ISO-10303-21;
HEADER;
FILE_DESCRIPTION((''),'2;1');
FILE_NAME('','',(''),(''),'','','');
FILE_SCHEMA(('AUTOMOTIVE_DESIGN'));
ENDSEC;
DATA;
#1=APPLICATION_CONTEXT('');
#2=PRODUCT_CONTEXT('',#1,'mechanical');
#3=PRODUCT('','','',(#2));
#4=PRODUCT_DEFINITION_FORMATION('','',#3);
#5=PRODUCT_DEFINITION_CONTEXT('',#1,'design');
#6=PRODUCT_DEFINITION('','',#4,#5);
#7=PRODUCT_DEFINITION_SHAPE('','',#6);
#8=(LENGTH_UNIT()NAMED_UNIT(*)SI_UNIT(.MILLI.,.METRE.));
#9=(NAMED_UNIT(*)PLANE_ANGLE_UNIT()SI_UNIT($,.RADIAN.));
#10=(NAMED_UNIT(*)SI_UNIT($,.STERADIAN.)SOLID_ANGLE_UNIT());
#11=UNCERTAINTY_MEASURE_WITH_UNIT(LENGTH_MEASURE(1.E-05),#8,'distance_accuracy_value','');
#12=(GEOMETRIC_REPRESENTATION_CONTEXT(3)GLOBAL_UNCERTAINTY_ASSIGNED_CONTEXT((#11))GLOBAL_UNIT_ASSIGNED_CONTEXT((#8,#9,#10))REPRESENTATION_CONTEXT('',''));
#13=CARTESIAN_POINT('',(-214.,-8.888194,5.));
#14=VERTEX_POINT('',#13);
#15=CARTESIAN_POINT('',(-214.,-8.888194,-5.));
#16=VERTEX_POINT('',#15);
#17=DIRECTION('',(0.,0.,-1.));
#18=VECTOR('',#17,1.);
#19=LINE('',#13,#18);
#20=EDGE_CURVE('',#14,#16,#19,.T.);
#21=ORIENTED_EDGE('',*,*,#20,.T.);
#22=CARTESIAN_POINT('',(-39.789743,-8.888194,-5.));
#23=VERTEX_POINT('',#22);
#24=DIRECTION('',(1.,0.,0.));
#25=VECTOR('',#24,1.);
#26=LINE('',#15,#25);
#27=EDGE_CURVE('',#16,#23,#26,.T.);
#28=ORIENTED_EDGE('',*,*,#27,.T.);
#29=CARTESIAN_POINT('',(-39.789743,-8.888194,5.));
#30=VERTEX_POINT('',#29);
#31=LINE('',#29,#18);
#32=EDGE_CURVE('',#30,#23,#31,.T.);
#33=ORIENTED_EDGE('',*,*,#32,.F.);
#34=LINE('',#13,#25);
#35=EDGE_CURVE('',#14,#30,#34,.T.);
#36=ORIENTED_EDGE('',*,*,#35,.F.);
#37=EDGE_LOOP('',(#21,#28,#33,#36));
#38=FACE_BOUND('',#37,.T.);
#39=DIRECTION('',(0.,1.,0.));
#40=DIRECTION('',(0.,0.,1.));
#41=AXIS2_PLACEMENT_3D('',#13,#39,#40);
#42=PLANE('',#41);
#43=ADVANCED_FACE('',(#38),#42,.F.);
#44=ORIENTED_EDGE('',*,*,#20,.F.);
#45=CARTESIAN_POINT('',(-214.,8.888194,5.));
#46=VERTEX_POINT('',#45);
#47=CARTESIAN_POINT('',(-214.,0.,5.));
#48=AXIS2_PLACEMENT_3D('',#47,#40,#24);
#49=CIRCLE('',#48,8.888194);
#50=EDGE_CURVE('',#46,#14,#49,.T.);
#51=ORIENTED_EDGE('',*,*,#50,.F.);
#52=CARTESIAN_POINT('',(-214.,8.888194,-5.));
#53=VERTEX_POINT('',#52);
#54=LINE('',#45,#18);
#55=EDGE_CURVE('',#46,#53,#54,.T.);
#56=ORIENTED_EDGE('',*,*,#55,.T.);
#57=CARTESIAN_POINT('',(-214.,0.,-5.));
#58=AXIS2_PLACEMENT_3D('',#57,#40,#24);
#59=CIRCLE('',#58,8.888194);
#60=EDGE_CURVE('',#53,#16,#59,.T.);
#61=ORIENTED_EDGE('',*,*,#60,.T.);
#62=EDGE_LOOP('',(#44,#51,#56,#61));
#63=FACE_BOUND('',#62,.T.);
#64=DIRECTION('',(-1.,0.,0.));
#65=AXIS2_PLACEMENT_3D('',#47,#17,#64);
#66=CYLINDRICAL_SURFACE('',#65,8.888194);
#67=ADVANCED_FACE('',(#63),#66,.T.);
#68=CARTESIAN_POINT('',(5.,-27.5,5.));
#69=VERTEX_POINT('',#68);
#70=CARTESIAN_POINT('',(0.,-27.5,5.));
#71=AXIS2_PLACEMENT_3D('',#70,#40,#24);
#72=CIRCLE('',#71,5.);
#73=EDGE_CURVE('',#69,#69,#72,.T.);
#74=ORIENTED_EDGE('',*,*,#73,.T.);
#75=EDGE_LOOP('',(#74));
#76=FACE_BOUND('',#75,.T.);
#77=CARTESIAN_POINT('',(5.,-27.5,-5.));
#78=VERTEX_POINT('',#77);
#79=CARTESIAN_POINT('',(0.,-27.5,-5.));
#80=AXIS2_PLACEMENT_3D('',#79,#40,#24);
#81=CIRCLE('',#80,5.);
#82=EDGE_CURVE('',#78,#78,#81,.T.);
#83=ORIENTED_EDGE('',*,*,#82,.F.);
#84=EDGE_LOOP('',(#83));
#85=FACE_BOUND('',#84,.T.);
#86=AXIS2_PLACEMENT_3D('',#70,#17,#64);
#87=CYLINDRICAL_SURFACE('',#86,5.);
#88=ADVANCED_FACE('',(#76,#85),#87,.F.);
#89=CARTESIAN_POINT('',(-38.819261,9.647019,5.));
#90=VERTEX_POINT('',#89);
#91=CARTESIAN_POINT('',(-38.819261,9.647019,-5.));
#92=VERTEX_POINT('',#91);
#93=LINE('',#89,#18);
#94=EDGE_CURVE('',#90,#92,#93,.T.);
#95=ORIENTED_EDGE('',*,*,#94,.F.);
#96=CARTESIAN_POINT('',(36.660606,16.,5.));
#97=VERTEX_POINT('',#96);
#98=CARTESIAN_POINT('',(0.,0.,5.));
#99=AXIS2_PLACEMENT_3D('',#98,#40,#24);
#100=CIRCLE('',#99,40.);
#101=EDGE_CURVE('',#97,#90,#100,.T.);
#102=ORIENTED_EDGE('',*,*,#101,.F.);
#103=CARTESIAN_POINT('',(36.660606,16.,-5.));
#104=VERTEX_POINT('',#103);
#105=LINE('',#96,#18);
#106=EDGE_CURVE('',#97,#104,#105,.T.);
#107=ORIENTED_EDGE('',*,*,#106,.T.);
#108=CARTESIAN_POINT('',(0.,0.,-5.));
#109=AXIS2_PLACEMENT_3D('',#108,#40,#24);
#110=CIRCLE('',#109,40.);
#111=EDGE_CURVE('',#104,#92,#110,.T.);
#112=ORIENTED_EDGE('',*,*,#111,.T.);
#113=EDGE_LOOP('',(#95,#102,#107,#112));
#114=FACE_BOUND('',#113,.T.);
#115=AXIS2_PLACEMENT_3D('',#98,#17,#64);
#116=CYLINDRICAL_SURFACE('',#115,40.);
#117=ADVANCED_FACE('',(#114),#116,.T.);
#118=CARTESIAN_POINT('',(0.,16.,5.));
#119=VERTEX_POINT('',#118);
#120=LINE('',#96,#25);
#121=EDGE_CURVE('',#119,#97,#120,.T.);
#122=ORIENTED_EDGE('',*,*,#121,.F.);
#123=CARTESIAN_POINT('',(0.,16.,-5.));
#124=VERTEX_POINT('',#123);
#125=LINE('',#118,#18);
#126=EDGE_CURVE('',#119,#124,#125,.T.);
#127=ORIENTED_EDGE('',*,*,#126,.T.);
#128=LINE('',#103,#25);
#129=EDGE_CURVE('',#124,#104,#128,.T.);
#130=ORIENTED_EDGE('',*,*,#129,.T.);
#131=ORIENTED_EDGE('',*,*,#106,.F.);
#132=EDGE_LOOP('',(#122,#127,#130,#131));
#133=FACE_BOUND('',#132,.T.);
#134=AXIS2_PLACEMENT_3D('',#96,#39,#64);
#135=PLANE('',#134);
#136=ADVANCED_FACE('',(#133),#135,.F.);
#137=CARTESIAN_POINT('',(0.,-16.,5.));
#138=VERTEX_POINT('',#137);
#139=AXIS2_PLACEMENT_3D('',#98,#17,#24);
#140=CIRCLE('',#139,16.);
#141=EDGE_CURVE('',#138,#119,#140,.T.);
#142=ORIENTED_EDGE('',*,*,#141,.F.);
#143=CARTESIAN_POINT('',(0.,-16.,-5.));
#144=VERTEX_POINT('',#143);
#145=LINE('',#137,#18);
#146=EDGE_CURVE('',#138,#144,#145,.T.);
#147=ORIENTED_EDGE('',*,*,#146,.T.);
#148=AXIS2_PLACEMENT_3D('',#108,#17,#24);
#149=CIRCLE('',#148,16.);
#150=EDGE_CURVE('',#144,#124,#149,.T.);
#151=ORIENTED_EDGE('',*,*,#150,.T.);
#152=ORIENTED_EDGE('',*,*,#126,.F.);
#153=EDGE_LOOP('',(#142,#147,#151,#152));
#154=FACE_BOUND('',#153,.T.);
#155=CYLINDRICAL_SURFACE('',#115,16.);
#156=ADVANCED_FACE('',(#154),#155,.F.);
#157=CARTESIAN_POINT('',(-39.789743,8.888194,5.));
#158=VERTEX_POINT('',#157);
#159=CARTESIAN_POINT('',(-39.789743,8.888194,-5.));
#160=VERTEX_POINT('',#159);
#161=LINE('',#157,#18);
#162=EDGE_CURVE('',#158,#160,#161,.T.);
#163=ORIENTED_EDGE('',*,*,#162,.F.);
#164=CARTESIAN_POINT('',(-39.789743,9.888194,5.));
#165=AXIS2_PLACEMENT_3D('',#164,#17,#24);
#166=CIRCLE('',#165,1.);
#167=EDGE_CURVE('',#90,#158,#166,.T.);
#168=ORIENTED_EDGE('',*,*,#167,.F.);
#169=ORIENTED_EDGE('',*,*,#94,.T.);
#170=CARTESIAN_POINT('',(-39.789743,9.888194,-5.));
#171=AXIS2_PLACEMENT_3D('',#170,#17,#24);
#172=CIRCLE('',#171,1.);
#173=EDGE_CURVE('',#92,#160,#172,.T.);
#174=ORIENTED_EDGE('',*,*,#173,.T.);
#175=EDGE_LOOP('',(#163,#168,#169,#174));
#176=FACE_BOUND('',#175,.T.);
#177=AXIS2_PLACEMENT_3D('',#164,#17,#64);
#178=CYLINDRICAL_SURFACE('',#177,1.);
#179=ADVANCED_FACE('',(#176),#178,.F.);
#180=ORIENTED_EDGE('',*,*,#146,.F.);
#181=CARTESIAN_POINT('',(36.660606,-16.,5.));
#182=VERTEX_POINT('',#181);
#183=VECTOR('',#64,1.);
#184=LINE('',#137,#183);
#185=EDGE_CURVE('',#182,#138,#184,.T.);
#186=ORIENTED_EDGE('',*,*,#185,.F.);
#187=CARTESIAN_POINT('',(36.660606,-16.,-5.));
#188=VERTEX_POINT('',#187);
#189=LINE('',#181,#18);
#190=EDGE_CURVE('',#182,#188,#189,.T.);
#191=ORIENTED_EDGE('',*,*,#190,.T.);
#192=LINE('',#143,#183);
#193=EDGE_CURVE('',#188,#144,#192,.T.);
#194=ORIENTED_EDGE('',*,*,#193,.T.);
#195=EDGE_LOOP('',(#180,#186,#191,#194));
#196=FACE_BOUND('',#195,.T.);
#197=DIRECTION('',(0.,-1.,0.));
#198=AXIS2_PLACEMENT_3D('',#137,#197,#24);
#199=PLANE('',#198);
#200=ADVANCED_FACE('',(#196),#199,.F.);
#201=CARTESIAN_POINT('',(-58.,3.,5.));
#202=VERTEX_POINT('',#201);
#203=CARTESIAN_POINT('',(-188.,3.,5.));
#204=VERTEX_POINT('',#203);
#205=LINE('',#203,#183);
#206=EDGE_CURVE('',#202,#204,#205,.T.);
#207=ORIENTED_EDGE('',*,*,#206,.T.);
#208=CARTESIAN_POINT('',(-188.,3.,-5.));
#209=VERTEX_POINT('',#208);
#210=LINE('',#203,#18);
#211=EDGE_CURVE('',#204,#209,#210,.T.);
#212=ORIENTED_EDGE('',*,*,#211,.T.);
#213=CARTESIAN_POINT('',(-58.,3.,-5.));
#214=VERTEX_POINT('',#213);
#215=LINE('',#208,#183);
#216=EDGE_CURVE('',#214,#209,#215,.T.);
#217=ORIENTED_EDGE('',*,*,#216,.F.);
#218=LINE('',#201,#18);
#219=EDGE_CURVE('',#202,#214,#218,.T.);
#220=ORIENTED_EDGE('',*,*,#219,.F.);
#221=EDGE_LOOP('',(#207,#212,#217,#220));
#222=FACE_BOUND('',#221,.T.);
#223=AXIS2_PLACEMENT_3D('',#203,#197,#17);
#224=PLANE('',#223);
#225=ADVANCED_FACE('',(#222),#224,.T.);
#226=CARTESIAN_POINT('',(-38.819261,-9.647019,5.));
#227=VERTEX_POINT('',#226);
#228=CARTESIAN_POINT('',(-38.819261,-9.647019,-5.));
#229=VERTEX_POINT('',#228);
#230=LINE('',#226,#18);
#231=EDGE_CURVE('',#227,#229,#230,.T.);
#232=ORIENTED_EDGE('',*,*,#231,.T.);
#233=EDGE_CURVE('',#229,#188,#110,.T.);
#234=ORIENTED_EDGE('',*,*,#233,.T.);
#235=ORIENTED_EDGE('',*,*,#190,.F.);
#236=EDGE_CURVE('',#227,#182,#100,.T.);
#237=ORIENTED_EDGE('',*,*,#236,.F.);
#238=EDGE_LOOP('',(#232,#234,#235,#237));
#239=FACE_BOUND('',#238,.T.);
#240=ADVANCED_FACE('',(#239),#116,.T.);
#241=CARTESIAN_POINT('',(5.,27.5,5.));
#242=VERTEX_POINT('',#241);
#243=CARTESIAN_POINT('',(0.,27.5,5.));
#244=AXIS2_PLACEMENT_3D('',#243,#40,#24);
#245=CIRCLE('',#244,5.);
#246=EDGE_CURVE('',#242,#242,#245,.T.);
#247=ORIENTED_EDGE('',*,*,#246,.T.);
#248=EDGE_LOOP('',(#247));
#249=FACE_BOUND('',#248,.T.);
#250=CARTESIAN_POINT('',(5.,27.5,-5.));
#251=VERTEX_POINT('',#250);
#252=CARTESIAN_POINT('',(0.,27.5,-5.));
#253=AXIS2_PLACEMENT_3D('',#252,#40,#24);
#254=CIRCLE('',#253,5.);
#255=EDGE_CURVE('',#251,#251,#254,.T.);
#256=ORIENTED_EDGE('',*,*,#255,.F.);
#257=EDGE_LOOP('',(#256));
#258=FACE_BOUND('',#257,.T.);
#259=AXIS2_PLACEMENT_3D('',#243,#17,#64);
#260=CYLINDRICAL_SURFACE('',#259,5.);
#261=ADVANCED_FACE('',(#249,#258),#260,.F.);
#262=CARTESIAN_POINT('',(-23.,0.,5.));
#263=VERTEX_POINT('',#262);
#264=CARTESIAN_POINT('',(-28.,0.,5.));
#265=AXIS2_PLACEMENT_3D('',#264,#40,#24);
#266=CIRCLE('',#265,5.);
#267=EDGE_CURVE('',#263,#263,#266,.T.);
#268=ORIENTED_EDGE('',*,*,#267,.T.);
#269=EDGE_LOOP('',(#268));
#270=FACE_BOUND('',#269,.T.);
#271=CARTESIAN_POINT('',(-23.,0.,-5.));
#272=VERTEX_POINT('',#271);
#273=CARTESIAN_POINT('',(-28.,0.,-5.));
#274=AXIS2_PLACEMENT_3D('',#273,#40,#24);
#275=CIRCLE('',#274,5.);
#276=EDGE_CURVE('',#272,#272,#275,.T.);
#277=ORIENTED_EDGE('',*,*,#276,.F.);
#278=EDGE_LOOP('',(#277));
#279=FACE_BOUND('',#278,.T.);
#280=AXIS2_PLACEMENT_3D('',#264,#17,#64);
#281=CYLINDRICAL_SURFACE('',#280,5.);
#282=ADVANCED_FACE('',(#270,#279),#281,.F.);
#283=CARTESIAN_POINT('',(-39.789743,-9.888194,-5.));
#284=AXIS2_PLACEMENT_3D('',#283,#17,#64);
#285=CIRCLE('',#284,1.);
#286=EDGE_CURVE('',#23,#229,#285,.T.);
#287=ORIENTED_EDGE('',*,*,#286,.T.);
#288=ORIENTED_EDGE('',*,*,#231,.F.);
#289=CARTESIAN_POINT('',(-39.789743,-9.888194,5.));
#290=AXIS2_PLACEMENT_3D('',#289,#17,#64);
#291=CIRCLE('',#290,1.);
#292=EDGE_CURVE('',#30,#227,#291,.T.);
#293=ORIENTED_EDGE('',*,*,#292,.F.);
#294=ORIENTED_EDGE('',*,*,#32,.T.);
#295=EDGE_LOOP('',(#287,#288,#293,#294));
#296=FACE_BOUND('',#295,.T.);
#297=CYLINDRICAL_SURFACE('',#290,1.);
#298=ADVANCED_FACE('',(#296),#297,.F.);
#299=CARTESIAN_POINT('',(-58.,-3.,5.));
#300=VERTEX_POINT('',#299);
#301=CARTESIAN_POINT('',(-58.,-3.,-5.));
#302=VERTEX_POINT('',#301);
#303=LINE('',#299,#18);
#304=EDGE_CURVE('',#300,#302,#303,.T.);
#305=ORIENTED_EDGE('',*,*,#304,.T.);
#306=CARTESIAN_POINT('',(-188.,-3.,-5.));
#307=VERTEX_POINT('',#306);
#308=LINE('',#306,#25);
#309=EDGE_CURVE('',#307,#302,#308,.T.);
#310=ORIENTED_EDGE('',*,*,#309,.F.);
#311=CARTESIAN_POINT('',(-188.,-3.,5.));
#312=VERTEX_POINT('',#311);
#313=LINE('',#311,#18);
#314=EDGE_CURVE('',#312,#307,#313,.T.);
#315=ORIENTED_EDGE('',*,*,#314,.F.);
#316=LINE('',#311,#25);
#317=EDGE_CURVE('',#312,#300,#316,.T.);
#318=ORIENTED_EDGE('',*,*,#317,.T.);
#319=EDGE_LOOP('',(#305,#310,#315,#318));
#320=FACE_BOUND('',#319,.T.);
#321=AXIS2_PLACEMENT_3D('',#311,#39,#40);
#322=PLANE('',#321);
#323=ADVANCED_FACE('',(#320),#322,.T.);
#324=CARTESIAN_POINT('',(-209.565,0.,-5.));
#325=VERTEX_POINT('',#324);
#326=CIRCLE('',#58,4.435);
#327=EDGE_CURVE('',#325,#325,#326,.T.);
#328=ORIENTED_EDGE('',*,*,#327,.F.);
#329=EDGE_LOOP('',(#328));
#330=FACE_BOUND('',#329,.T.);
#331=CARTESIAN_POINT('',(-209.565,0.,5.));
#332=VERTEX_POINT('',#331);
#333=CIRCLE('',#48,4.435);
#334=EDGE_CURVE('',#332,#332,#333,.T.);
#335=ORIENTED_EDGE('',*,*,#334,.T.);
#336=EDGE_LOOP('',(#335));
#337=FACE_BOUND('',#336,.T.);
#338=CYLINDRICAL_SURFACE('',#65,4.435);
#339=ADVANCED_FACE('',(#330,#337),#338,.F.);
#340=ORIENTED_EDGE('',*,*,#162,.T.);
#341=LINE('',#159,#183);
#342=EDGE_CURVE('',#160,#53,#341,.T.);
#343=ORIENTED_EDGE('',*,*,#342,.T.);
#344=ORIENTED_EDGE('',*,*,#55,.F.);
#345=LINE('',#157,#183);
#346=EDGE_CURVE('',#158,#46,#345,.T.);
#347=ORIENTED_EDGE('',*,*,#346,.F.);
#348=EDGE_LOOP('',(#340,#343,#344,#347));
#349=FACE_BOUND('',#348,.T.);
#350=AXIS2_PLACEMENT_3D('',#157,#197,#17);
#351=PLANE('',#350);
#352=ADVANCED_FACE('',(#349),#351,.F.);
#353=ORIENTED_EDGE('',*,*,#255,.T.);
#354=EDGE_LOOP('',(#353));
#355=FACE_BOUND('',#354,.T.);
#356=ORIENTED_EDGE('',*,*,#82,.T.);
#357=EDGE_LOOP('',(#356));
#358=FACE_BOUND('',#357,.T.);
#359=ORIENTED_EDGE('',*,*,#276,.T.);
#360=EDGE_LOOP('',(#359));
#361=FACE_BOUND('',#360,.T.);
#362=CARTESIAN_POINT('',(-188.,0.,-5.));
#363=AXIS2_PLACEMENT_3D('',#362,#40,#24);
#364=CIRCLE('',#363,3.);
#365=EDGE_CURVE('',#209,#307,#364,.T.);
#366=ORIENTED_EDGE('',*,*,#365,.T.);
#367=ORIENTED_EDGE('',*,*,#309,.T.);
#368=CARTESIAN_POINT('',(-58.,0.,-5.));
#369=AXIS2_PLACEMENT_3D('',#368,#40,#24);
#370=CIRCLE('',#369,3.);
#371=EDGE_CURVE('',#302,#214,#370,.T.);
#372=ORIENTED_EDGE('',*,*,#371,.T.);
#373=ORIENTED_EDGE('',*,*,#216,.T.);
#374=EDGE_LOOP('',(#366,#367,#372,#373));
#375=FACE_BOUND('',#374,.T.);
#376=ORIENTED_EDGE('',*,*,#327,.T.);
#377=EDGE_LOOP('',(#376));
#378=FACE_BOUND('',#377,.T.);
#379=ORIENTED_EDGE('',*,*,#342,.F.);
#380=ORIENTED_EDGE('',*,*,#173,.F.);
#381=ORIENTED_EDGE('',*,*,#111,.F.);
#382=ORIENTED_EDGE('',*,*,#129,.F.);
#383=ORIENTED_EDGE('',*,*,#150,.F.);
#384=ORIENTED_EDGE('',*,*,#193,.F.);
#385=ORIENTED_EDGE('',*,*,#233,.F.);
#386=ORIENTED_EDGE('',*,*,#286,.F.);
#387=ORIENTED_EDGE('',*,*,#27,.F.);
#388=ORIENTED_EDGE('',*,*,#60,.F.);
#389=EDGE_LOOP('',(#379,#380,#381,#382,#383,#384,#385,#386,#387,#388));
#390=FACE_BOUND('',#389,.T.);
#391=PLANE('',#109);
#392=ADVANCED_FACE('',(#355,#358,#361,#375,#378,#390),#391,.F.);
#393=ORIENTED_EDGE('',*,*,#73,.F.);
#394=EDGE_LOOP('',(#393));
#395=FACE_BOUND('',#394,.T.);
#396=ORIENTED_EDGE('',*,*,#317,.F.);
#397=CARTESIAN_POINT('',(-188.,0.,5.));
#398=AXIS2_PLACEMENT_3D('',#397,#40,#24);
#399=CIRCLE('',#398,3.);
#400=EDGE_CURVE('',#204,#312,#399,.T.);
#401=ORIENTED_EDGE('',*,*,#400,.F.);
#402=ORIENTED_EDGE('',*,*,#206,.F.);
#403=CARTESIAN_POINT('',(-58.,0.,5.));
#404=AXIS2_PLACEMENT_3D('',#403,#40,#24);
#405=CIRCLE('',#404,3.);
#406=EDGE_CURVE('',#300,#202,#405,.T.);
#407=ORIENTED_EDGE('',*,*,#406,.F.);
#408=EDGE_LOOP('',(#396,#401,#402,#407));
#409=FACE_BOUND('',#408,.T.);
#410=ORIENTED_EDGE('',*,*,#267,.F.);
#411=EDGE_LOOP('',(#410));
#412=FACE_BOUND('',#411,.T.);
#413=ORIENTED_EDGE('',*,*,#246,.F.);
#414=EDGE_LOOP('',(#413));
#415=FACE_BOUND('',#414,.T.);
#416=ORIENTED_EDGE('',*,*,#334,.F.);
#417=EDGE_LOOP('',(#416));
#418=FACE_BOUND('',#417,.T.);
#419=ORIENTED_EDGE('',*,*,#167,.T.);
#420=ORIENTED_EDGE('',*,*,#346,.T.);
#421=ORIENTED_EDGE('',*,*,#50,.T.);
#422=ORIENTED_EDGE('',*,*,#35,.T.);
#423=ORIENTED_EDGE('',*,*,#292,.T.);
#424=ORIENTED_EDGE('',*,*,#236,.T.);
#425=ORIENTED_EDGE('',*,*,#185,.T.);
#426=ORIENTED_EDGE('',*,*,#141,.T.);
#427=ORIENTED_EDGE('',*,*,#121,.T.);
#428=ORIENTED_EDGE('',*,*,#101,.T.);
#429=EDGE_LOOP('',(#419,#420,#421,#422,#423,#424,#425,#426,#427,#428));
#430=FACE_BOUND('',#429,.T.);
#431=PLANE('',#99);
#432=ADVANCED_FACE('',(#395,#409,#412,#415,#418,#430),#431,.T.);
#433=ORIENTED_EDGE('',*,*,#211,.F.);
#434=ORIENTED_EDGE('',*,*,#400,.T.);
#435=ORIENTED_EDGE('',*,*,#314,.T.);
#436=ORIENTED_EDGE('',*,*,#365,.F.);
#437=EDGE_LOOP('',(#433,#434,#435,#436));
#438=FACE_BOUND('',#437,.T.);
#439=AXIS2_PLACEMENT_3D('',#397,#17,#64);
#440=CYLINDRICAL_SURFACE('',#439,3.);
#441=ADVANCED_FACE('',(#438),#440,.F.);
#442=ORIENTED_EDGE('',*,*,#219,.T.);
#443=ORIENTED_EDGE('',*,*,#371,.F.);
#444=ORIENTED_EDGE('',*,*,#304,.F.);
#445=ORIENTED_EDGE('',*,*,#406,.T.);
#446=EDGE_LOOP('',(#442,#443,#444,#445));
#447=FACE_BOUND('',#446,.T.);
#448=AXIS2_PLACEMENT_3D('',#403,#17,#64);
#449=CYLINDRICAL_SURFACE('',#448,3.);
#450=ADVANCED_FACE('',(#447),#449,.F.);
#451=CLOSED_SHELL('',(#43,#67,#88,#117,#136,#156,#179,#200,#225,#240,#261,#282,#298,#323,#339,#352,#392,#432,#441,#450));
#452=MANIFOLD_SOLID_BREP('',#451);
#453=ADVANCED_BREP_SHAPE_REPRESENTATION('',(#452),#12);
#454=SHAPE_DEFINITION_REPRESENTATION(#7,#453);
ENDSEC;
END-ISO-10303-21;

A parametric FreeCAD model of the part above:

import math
import FreeCAD as App
import Part
import Sketcher

doc = App.newDocument("Part")
body = doc.addObject("PartDesign::Body", "Body")

# Sketch on XY plane
sketch1 = body.newObject("Sketcher::SketchObject", "Sketch")
sketch1.AttachmentSupport = (doc.getObject("XY_Plane"), [""])
sketch1.MapMode = "FlatFace"
sketch1.addGeometry([
    Part.LineSegment(App.Vector(0, 16, 0), App.Vector(36.7, 16, 0)),  # 0
    Part.ArcOfCircle(Part.Circle(App.Vector(0, 0, 0), App.Vector(0, 0, 1), 40), math.radians(24), math.radians(166)),  # 1
    Part.ArcOfCircle(Part.Circle(App.Vector(-39.8, 9.9, 0), App.Vector(0, 0, 1), 1), math.radians(-90), math.radians(-14)),  # 2
    Part.LineSegment(App.Vector(-39.8, 8.9, 0), App.Vector(-214, 8.9, 0)),  # 3
    Part.ArcOfCircle(Part.Circle(App.Vector(-214, 0, 0), App.Vector(0, 0, 1), 8.9), math.radians(90), math.radians(270)),  # 4
    Part.LineSegment(App.Vector(-214, -8.9, 0), App.Vector(-39.8, -8.9, 0)),  # 5
    Part.ArcOfCircle(Part.Circle(App.Vector(-39.8, -9.9, 0), App.Vector(0, 0, 1), 1), math.radians(14), math.radians(90)),  # 6
    Part.ArcOfCircle(Part.Circle(App.Vector(0, 0, 0), App.Vector(0, 0, 1), 40), math.radians(-166), math.radians(-24)),  # 7
    Part.LineSegment(App.Vector(36.7, -16, 0), App.Vector(0, -16, 0)),  # 8
    Part.ArcOfCircle(Part.Circle(App.Vector(0, 0, 0), App.Vector(0, 0, 1), 16), math.radians(90), math.radians(270)),  # 9
    Part.Circle(App.Vector(0, -27.5, 0), App.Vector(0, 0, 1), 5),  # 10
    Part.Circle(App.Vector(-28, 0, 0), App.Vector(0, 0, 1), 5),  # 11
    Part.Circle(App.Vector(0, 27.5, 0), App.Vector(0, 0, 1), 5),  # 12
    Part.LineSegment(App.Vector(-188, 3, 0), App.Vector(-58, 3, 0)),  # 13
    Part.ArcOfCircle(Part.Circle(App.Vector(-58, 0, 0), App.Vector(0, 0, 1), 3), math.radians(-90), math.radians(90)),  # 14
    Part.LineSegment(App.Vector(-58, -3, 0), App.Vector(-188, -3, 0)),  # 15
    Part.ArcOfCircle(Part.Circle(App.Vector(-188, 0, 0), App.Vector(0, 0, 1), 3), math.radians(90), math.radians(270)),  # 16
    Part.Circle(App.Vector(-214, 0, 0), App.Vector(0, 0, 1), 4.4),  # 17
], False)
sketch1.addConstraint([
    Sketcher.Constraint("Coincident", 0, 2, 1, 1),
    Sketcher.Constraint("Tangent", 1, 2, 2, 2),
    Sketcher.Constraint("Tangent", 2, 1, 3, 1),
    Sketcher.Constraint("Tangent", 3, 2, 4, 1),
    Sketcher.Constraint("Tangent", 4, 2, 5, 1),
    Sketcher.Constraint("Tangent", 5, 2, 6, 2),
    Sketcher.Constraint("Tangent", 6, 1, 7, 1),
    Sketcher.Constraint("Coincident", 7, 2, 8, 1),
    Sketcher.Constraint("Tangent", 8, 2, 9, 2),
    Sketcher.Constraint("Tangent", 9, 1, 0, 1),
    Sketcher.Constraint("Tangent", 13, 2, 14, 2),
    Sketcher.Constraint("Tangent", 14, 1, 15, 1),
    Sketcher.Constraint("Tangent", 15, 2, 16, 2),
    Sketcher.Constraint("Tangent", 16, 1, 13, 1),
    Sketcher.Constraint("Horizontal", 0),
    Sketcher.Constraint("Horizontal", 3),
    Sketcher.Constraint("Horizontal", 5),
    Sketcher.Constraint("Horizontal", 8),
    Sketcher.Constraint("Horizontal", 13),
    Sketcher.Constraint("Horizontal", 15),
    Sketcher.Constraint("Coincident", 1, 3, -1, 1),
    Sketcher.Constraint("Coincident", 7, 3, -1, 1),
    Sketcher.Constraint("Coincident", 9, 3, -1, 1),
    Sketcher.Constraint("Coincident", 17, 3, 4, 3),
    Sketcher.Constraint("Equal", 2, 6),
    Sketcher.Constraint("Equal", 1, 7),
    Sketcher.Constraint("Equal", 10, 11),
    Sketcher.Constraint("Equal", 11, 12),
    Sketcher.Constraint("Symmetric", 10, 3, 12, 3, -1, 1),
    Sketcher.Constraint("PointOnObject", 4, 3, -1),
    Sketcher.Constraint("PointOnObject", 10, 3, -2),
    Sketcher.Constraint("PointOnObject", 11, 3, -1),
    Sketcher.Constraint("PointOnObject", 14, 3, -1),
    Sketcher.Constraint("Diameter", 10, 10.0),
    Sketcher.Constraint("Radius", 1, 40.0),
    Sketcher.Constraint("Radius", 2, 1.0),
    Sketcher.Constraint("Radius", 9, 16.0),
    Sketcher.Constraint("Radius", 14, 3.0),
    Sketcher.Constraint("Diameter", 17, 8.87),
    Sketcher.Constraint("DistanceX", 13, 1, 13, 2, 130.0),
    Sketcher.Constraint("DistanceX", 4, 3, -1, 1, 214.0),
    Sketcher.Constraint("DistanceX", 11, 3, -1, 1, 28.0),
    Sketcher.Constraint("DistanceX", 14, 3, -1, 1, 58.0),
    Sketcher.Constraint("DistanceY", 10, 3, -1, 1, 27.5),
    Sketcher.Constraint("Radius", 4, 8.888194),
])
pad1 = body.newObject("PartDesign::Pad", "Pad")
pad1.Profile = sketch1
pad1.Length = 10
pad1.Midplane = True

doc.recompute()
